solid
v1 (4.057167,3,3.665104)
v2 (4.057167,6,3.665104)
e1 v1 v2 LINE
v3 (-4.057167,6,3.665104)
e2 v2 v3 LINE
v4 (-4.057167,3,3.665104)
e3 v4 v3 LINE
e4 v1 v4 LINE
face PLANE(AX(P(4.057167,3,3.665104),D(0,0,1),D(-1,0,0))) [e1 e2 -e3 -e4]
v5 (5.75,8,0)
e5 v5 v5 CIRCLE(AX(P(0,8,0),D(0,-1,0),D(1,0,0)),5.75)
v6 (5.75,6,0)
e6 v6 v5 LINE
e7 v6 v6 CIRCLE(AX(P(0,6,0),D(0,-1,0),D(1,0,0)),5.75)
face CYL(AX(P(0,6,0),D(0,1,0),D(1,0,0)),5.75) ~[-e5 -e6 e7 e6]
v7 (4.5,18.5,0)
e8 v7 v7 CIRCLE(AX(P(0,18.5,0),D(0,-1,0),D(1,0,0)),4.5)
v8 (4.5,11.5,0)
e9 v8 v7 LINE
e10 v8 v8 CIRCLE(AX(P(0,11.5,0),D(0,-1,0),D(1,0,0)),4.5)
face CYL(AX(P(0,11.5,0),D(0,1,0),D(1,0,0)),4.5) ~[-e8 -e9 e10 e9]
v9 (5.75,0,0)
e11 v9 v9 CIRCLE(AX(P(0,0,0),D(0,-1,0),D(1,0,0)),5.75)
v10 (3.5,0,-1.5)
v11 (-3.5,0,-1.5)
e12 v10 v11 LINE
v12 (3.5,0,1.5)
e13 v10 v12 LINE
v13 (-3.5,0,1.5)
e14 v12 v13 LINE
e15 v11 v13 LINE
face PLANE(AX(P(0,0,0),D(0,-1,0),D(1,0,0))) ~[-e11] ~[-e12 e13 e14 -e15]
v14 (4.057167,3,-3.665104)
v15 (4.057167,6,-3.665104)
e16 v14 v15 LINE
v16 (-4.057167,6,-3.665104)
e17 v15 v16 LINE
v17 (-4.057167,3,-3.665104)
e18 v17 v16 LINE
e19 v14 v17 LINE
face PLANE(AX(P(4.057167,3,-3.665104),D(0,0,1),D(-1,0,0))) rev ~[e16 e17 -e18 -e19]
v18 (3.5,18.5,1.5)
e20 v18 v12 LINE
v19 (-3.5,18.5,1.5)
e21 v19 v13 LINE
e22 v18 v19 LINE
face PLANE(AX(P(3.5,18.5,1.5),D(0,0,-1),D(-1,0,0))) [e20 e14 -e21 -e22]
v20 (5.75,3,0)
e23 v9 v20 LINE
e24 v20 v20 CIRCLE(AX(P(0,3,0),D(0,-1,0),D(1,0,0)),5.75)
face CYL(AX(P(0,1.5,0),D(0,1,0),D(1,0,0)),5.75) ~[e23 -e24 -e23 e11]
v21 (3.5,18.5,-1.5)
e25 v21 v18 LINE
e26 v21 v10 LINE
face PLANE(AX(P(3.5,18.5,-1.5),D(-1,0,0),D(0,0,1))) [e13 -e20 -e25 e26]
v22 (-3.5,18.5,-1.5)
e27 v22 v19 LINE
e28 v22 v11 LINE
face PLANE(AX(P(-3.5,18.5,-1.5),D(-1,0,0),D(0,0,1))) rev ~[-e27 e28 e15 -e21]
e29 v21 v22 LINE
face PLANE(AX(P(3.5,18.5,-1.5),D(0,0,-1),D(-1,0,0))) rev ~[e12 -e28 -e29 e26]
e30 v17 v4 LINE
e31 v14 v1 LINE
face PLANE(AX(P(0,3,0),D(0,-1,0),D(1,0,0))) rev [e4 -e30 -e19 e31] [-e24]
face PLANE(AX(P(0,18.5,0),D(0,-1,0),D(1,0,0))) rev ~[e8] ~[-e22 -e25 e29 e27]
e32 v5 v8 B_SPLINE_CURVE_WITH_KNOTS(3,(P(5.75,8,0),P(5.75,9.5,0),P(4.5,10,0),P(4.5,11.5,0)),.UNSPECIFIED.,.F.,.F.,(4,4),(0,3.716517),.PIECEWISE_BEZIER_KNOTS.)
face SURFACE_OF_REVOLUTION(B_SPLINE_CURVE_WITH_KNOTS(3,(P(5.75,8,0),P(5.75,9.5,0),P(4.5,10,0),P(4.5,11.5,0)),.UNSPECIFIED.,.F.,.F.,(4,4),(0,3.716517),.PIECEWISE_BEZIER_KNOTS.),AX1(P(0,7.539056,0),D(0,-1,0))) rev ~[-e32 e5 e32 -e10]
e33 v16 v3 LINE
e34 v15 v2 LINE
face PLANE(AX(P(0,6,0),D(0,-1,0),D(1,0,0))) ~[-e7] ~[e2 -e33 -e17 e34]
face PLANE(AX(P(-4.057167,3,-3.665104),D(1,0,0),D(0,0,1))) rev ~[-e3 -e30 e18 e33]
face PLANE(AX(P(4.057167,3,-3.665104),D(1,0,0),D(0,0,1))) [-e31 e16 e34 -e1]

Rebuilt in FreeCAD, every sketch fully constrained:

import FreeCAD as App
import Part
import Sketcher

V = App.Vector

doc = App.newDocument("Part")
body = doc.addObject("PartDesign::Body", "Body")
body.AllowCompound = True

sketch1 = doc.addObject("Sketcher::SketchObject", "Sketch")
body.addObject(sketch1)
sketch1.AttachmentSupport = (doc.XY_Plane, [""])
sketch1.MapMode = "FlatFace"
sketch1.addGeometry([
    Part.LineSegment(V(4.5, 18.5, 0), V(0, 18.5, 0)),
    Part.LineSegment(V(0, 18.5, 0), V(0, 6, 0)),
    Part.LineSegment(V(0, 6, 0), V(5.75, 6, 0)),
    Part.LineSegment(V(5.75, 6, 0), V(5.75, 8, 0)),
    Part.BSplineCurve([V(5.75, 8, 0), V(5.75, 9.5, 0), V(4.5, 10, 0), V(4.5, 11.5, 0)], [4, 4], [0, 3.716517], False, 3, [1, 1, 1, 1], False),
    Part.LineSegment(V(4.5, 11.5, 0), V(4.5, 18.5, 0)),
    Part.LineSegment(V(0, 3, 0), V(0, 0, 0)),
    Part.LineSegment(V(0, 0, 0), V(5.75, 0, 0)),
    Part.LineSegment(V(5.75, 0, 0), V(5.75, 3, 0)),
    Part.LineSegment(V(5.75, 3, 0), V(0, 3, 0)),
], False)
sketch1.addConstraint([
    Sketcher.Constraint("Block", 4),
    Sketcher.Constraint("Coincident", 0, 2, 1, 1),
    Sketcher.Constraint("Coincident", 1, 2, 2, 1),
    Sketcher.Constraint("Coincident", 2, 2, 3, 1),
    Sketcher.Constraint("Coincident", 3, 2, 4, 1),
    Sketcher.Constraint("Coincident", 4, 2, 5, 1),
    Sketcher.Constraint("Coincident", 5, 2, 0, 1),
    Sketcher.Constraint("Coincident", 6, 2, 7, 1),
    Sketcher.Constraint("Coincident", 7, 2, 8, 1),
    Sketcher.Constraint("Coincident", 8, 2, 9, 1),
    Sketcher.Constraint("Coincident", 9, 2, 6, 1),
    Sketcher.Constraint("Horizontal", 0),
    Sketcher.Constraint("Vertical", 1),
    Sketcher.Constraint("Horizontal", 2),
    Sketcher.Constraint("Vertical", 3),
    Sketcher.Constraint("Vertical", 5),
    Sketcher.Constraint("Vertical", 6),
    Sketcher.Constraint("Horizontal", 7),
    Sketcher.Constraint("Vertical", 8),
    Sketcher.Constraint("Horizontal", 9),
    Sketcher.Constraint("Coincident", 6, 2, -1, 1),
    Sketcher.Constraint("PointOnObject", 0, 2, -2),
    Sketcher.Constraint("Vertical", 3, 2, 7, 2),
    Sketcher.Constraint("DistanceY", 3, 1, 3, 2, 2.0),
    Sketcher.Constraint("DistanceY", 5, 1, 5, 2, 7.0),
    Sketcher.Constraint("DistanceY", 6, 2, 6, 1, 3.0),
])
revolution = doc.addObject("PartDesign::Revolution", "Revolution")
body.addObject(revolution)
revolution.Profile = sketch1
revolution.ReferenceAxis = (sketch1, ["V_Axis"])
revolution.Angle = 360

sketch2 = doc.addObject("Sketcher::SketchObject", "Sketch001")
body.addObject(sketch2)
sketch2.AttachmentSupport = (doc.XZ_Plane, [""])
sketch2.MapMode = "FlatFace"
sketch2.AttachmentOffset = App.Placement(V(0, 0, -3), App.Rotation())
sketch2.addGeometry([
    Part.LineSegment(V(4, 4, 0), V(4, -4, 0)),
    Part.LineSegment(V(4, -4, 0), V(-4, -4, 0)),
    Part.LineSegment(V(-4, -4, 0), V(-4, 4, 0)),
    Part.LineSegment(V(-4, 4, 0), V(4, 4, 0)),
], False)
sketch2.addConstraint([
    Sketcher.Constraint("Coincident", 0, 2, 1, 1),
    Sketcher.Constraint("Coincident", 1, 2, 2, 1),
    Sketcher.Constraint("Coincident", 2, 2, 3, 1),
    Sketcher.Constraint("Coincident", 3, 2, 0, 1),
    Sketcher.Constraint("Vertical", 0),
    Sketcher.Constraint("Horizontal", 1),
    Sketcher.Constraint("Vertical", 2),
    Sketcher.Constraint("Horizontal", 3),
    Sketcher.Constraint("Symmetric", 0, 2, 2, 2, -1, 1),
    Sketcher.Constraint("DistanceX", 1, 2, 1, 1, 8.114334),
    Sketcher.Constraint("DistanceY", 0, 2, 0, 1, 7.330208),
])
pad1 = doc.addObject("PartDesign::Pad", "Pad")
body.addObject(pad1)
pad1.Profile = sketch2
pad1.Length = 3
pad1.Reversed = True

sketch3 = doc.addObject("Sketcher::SketchObject", "Sketch002")
body.addObject(sketch3)
sketch3.AttachmentSupport = (doc.XZ_Plane, [""])
sketch3.MapMode = "FlatFace"
sketch3.AttachmentOffset = App.Placement(V(0, 0, -18.5), App.Rotation())
sketch3.addGeometry([
    Part.LineSegment(V(3.5, 1.5, 0), V(3.5, -1.5, 0)),
    Part.LineSegment(V(3.5, -1.5, 0), V(-3.5, -1.5, 0)),
    Part.LineSegment(V(-3.5, -1.5, 0), V(-3.5, 1.5, 0)),
    Part.LineSegment(V(-3.5, 1.5, 0), V(3.5, 1.5, 0)),
], False)
sketch3.addConstraint([
    Sketcher.Constraint("Coincident", 0, 2, 1, 1),
    Sketcher.Constraint("Coincident", 1, 2, 2, 1),
    Sketcher.Constraint("Coincident", 2, 2, 3, 1),
    Sketcher.Constraint("Coincident", 3, 2, 0, 1),
    Sketcher.Constraint("Vertical", 0),
    Sketcher.Constraint("Horizontal", 1),
    Sketcher.Constraint("Vertical", 2),
    Sketcher.Constraint("Horizontal", 3),
    Sketcher.Constraint("Symmetric", 0, 2, 2, 2, -1, 1),
    Sketcher.Constraint("DistanceX", 1, 2, 1, 1, 7.0),
    Sketcher.Constraint("DistanceY", 0, 2, 0, 1, 3.0),
])
pocket1 = doc.addObject("PartDesign::Pocket", "Pocket")
body.addObject(pocket1)
pocket1.Profile = sketch3
pocket1.Type = "ThroughAll"
pocket1.Reversed = True

doc.recompute()
